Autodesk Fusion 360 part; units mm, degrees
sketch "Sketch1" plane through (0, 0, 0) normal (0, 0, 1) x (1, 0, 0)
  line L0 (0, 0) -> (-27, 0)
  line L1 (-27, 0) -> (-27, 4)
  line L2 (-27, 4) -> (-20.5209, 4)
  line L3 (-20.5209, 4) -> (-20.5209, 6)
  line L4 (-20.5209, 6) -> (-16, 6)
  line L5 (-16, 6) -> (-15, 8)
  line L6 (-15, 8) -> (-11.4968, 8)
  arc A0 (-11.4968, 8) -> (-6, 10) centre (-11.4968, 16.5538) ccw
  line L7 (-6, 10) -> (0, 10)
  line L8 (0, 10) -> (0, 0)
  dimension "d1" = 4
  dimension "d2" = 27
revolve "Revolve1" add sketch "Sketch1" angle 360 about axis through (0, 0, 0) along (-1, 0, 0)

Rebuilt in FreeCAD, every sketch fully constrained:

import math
import FreeCAD as App
import Part
import Sketcher

V = App.Vector
Q = App.Units.Quantity

doc = App.newDocument("Part")
body = doc.addObject("PartDesign::Body", "Body")

sketch1 = body.newObject("Sketcher::SketchObject", "Sketch")
sketch1.AttachmentSupport = (doc.getObject("XY_Plane"), [""])
sketch1.MapMode = "FlatFace"
sketch1.addGeometry(Part.LineSegment(V(-27, 0, 0), V(0, 0, 0)), False)
sketch1.addGeometry(Part.LineSegment(V(0, 0, 0), V(0, 10, 0)), False)
sketch1.addGeometry(Part.LineSegment(V(0, 10, 0), V(-6, 10, 0)), False)
sketch1.addGeometry(Part.ArcOfCircle(Part.Circle(V(-11.5, 16.6, 0), V(0, 0, 1), 8.6), math.radians(-90), math.radians(-50)), False)
sketch1.addGeometry(Part.LineSegment(V(-11.5, 8, 0), V(-15, 8, 0)), False)
sketch1.addGeometry(Part.LineSegment(V(-15, 8, 0), V(-16, 6, 0)), False)
sketch1.addGeometry(Part.LineSegment(V(-16, 6, 0), V(-20.5, 6, 0)), False)
sketch1.addGeometry(Part.LineSegment(V(-20.5, 6, 0), V(-20.5, 4, 0)), False)
sketch1.addGeometry(Part.LineSegment(V(-20.5, 4, 0), V(-27, 4, 0)), False)
sketch1.addGeometry(Part.LineSegment(V(-27, 4, 0), V(-27, 0, 0)), False)
sketch1.addConstraint(Sketcher.Constraint("Coincident", 0, 2, 1, 1))
sketch1.addConstraint(Sketcher.Constraint("Coincident", 1, 2, 2, 1))
sketch1.addConstraint(Sketcher.Constraint("Coincident", 2, 2, 3, 2))
sketch1.addConstraint(Sketcher.Constraint("Tangent", 3, 1, 4, 1))
sketch1.addConstraint(Sketcher.Constraint("Coincident", 4, 2, 5, 1))
sketch1.addConstraint(Sketcher.Constraint("Coincident", 5, 2, 6, 1))
sketch1.addConstraint(Sketcher.Constraint("Coincident", 6, 2, 7, 1))
sketch1.addConstraint(Sketcher.Constraint("Coincident", 7, 2, 8, 1))
sketch1.addConstraint(Sketcher.Constraint("Coincident", 8, 2, 9, 1))
sketch1.addConstraint(Sketcher.Constraint("Coincident", 9, 2, 0, 1))
sketch1.addConstraint(Sketcher.Constraint("Horizontal", 0))
sketch1.addConstraint(Sketcher.Constraint("Vertical", 1))
sketch1.addConstraint(Sketcher.Constraint("Horizontal", 2))
sketch1.addConstraint(Sketcher.Constraint("Horizontal", 4))
sketch1.addConstraint(Sketcher.Constraint("Horizontal", 6))
sketch1.addConstraint(Sketcher.Constraint("Vertical", 7))
sketch1.addConstraint(Sketcher.Constraint("Horizontal", 8))
sketch1.addConstraint(Sketcher.Constraint("Vertical", 9))
sketch1.addConstraint(Sketcher.Constraint("Coincident", 0, 2, -1, 1))
sketch1.addConstraint(Sketcher.Constraint("DistanceX", 0, 1, 0, 2, Q("27 mm")))
sketch1.addConstraint(Sketcher.Constraint("DistanceY", 9, 2, 9, 1, Q("4 mm")))
sketch1.addConstraint(Sketcher.Constraint("DistanceY", 5, 2, 2, 2, Q("4 mm")))
sketch1.addConstraint(Sketcher.Constraint("DistanceY", 7, 2, 4, 2, Q("4 mm")))
sketch1.addConstraint(Sketcher.Constraint("DistanceX", 2, 2, 2, 1, Q("6 mm")))
sketch1.addConstraint(Sketcher.Constraint("DistanceY", 1, 1, 1, 2, Q("10 mm")))
sketch1.addConstraint(Sketcher.Constraint("DistanceX", 4, 2, -1, 1, Q("15 mm")))
sketch1.addConstraint(Sketcher.Constraint("DistanceX", 5, 2, -1, 1, Q("16 mm")))
sketch1.addConstraint(Sketcher.Constraint("Radius", 3, Q("8.5538 mm")))
sketch1.addConstraint(Sketcher.Constraint("DistanceX", 6, 2, 6, 1, Q("4.521 mm")))
revolution = body.newObject("PartDesign::Revolution", "Revolution")
revolution.Profile = sketch1
revolution.ReferenceAxis = (sketch1, ["H_Axis"])
revolution.Angle = 360

doc.recompute()
